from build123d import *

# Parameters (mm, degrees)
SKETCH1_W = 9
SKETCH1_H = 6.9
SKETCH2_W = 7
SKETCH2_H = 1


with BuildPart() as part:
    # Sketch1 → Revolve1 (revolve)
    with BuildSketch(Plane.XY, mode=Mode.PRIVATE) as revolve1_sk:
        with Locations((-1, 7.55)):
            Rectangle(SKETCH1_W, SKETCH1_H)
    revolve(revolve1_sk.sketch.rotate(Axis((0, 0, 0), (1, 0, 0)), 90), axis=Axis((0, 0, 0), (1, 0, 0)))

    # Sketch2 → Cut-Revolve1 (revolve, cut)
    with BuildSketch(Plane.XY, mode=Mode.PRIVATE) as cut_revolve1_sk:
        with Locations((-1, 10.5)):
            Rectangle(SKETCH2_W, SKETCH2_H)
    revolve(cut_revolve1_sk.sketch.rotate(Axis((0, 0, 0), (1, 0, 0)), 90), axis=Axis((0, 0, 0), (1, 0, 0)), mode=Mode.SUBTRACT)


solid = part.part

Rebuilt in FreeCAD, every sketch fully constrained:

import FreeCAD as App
import Part
import Sketcher

V = App.Vector
Q = App.Units.Quantity

doc = App.newDocument("Part")
params = doc.addObject("Spreadsheet::Sheet", "Params")
for row, (alias, value) in enumerate([
    ("sketch1_width", "9 mm"),
    ("sketch1_height", "6.9 mm"),
    ("revolution_angle", "360 deg"),
    ("sketch2_width", "7 mm"),
    ("sketch2_height", "1 mm"),
    ("groove_angle", "360 deg"),
], start=1):
    params.set(f"A{row}", alias)
    params.set(f"B{row}", "=" + value)
    params.setAlias(f"B{row}", alias)

body = doc.addObject("PartDesign::Body", "Body")

sketch1 = body.newObject("Sketcher::SketchObject", "Sketch")
sketch1.AttachmentSupport = (doc.getObject("XY_Plane"), [""])
sketch1.MapMode = "FlatFace"
sketch1.addGeometry(Part.LineSegment(V(-5.5, 11, 0), V(-5.5, 4.1, 0)), False)
sketch1.addGeometry(Part.LineSegment(V(-5.5, 4.1, 0), V(3.5, 4.1, 0)), False)
sketch1.addGeometry(Part.LineSegment(V(3.5, 4.1, 0), V(3.5, 11, 0)), False)
sketch1.addGeometry(Part.LineSegment(V(3.5, 11, 0), V(-5.5, 11, 0)), False)
sketch1.addConstraint(Sketcher.Constraint("Coincident", 0, 2, 1, 1))
sketch1.addConstraint(Sketcher.Constraint("Coincident", 1, 2, 2, 1))
sketch1.addConstraint(Sketcher.Constraint("Coincident", 2, 2, 3, 1))
sketch1.addConstraint(Sketcher.Constraint("Coincident", 3, 2, 0, 1))
sketch1.addConstraint(Sketcher.Constraint("Vertical", 0))
sketch1.addConstraint(Sketcher.Constraint("Horizontal", 1))
sketch1.addConstraint(Sketcher.Constraint("Vertical", 2))
sketch1.addConstraint(Sketcher.Constraint("Horizontal", 3))
sketch1.addConstraint(Sketcher.Constraint("DistanceX", 1, 1, 1, 2, Q("9 mm")))
sketch1.addConstraint(Sketcher.Constraint("DistanceY", 0, 2, 0, 1, Q("6.9 mm")))
sketch1.addConstraint(Sketcher.Constraint("DistanceY", -1, 1, 2, 2, Q("11 mm")))
sketch1.addConstraint(Sketcher.Constraint("DistanceX", 0, 2, -1, 1, Q("5.5 mm")))
sketch1.setExpression("Constraints[8]", "Params.sketch1_width")
sketch1.setExpression("Constraints[9]", "Params.sketch1_height")
revolution = body.newObject("PartDesign::Revolution", "Revolution")
revolution.Profile = sketch1
revolution.ReferenceAxis = (sketch1, ["H_Axis"])
revolution.setExpression("Angle", "Params.revolution_angle")

sketch2 = body.newObject("Sketcher::SketchObject", "Sketch001")
sketch2.AttachmentSupport = (doc.getObject("XY_Plane"), [""])
sketch2.MapMode = "FlatFace"
sketch2.addGeometry(Part.LineSegment(V(-4.5, 11, 0), V(-4.5, 10, 0)), False)
sketch2.addGeometry(Part.LineSegment(V(-4.5, 10, 0), V(2.5, 10, 0)), False)
sketch2.addGeometry(Part.LineSegment(V(2.5, 10, 0), V(2.5, 11, 0)), False)
sketch2.addGeometry(Part.LineSegment(V(2.5, 11, 0), V(-4.5, 11, 0)), False)
sketch2.addConstraint(Sketcher.Constraint("Coincident", 0, 2, 1, 1))
sketch2.addConstraint(Sketcher.Constraint("Coincident", 1, 2, 2, 1))
sketch2.addConstraint(Sketcher.Constraint("Coincident", 2, 2, 3, 1))
sketch2.addConstraint(Sketcher.Constraint("Coincident", 3, 2, 0, 1))
sketch2.addConstraint(Sketcher.Constraint("Vertical", 0))
sketch2.addConstraint(Sketcher.Constraint("Horizontal", 1))
sketch2.addConstraint(Sketcher.Constraint("Vertical", 2))
sketch2.addConstraint(Sketcher.Constraint("Horizontal", 3))
sketch2.addConstraint(Sketcher.Constraint("DistanceX", 1, 1, 1, 2, Q("7 mm")))
sketch2.addConstraint(Sketcher.Constraint("DistanceY", 0, 2, 0, 1, Q("1 mm")))
sketch2.addConstraint(Sketcher.Constraint("DistanceY", -1, 1, 0, 2, Q("10 mm")))
sketch2.addConstraint(Sketcher.Constraint("DistanceX", 0, 2, -1, 1, Q("4.5 mm")))
sketch2.setExpression("Constraints[8]", "Params.sketch2_width")
sketch2.setExpression("Constraints[9]", "Params.sketch2_height")
groove = body.newObject("PartDesign::Groove", "Groove")
groove.Profile = sketch2
groove.ReferenceAxis = (sketch2, ["H_Axis"])
groove.setExpression("Angle", "Params.groove_angle")

doc.recompute()
